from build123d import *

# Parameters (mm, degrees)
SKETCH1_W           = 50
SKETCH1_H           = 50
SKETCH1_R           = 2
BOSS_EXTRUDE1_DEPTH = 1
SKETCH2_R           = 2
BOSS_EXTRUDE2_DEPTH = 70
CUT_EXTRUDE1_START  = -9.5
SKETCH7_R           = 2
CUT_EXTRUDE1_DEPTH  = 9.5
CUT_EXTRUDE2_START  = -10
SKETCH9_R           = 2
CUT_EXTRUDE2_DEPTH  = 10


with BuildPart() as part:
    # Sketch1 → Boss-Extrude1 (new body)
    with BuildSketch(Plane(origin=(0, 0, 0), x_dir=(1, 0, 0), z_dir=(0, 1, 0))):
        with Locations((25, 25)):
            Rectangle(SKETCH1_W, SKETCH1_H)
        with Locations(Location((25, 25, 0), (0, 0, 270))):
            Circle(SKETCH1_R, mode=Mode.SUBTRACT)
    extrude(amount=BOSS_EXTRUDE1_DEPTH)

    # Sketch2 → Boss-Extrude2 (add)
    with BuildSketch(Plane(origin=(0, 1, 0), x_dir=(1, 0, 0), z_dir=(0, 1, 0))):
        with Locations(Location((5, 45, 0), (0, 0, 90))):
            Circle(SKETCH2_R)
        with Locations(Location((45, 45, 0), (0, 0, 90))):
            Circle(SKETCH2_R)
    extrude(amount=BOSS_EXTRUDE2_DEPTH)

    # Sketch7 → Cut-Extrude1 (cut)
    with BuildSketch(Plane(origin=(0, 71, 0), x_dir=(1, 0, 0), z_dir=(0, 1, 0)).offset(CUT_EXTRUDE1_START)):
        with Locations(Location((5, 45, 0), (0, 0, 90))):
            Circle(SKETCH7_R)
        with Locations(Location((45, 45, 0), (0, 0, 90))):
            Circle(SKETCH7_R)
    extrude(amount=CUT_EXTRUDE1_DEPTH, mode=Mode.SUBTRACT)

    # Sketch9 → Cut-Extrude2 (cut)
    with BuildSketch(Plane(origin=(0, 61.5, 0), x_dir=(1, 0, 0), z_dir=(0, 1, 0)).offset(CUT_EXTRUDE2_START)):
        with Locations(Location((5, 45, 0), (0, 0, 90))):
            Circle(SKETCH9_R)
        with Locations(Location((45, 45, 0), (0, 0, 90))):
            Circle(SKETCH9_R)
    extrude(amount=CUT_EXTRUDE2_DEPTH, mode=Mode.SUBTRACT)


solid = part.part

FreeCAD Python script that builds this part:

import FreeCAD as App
import Part
import Sketcher
Q = App.Units.Quantity

doc = App.newDocument("Part")
body = doc.addObject("PartDesign::Body", "Body")

# Sketch on XZ plane
sketch1 = body.newObject("Sketcher::SketchObject", "Sketch")
sketch1.AttachmentSupport = (doc.getObject("XZ_Plane"), [""])
sketch1.MapMode = "FlatFace"
sketch1.addGeometry([
    Part.LineSegment(App.Vector(0, -50, 0), App.Vector(0, 0, 0)),  # 0
    Part.LineSegment(App.Vector(0, 0, 0), App.Vector(50, 0, 0)),  # 1
    Part.LineSegment(App.Vector(50, 0, 0), App.Vector(50, -50, 0)),  # 2
    Part.LineSegment(App.Vector(50, -50, 0), App.Vector(0, -50, 0)),  # 3
    Part.Circle(App.Vector(25, -25, 0), App.Vector(0, 0, 1), 2),  # 4
], False)
sketch1.addConstraint([
    Sketcher.Constraint("Coincident", 0, 2, 1, 1),
    Sketcher.Constraint("Coincident", 1, 2, 2, 1),
    Sketcher.Constraint("Coincident", 2, 2, 3, 1),
    Sketcher.Constraint("Coincident", 3, 2, 0, 1),
    Sketcher.Constraint("Vertical", 0),
    Sketcher.Constraint("Horizontal", 1),
    Sketcher.Constraint("Vertical", 2),
    Sketcher.Constraint("Horizontal", 3),
    Sketcher.Constraint("Coincident", 0, 2, -1, 1),
    Sketcher.Constraint("Equal", 3, 0),
    Sketcher.Constraint("Diameter", 4, Q("4 mm")),
    Sketcher.Constraint("DistanceX", 1, 1, 1, 2, Q("50 mm")),
    Sketcher.Constraint("DistanceX", -1, 1, 4, 3, Q("25 mm")),
    Sketcher.Constraint("DistanceY", 4, 3, -1, 1, Q("25 mm")),
])
pad1 = body.newObject("PartDesign::Pad", "Pad")
pad1.Profile = sketch1
pad1.Length = 1
pad1.Reversed = True

# Sketch on XZ plane
sketch2 = body.newObject("Sketcher::SketchObject", "Sketch001")
sketch2.AttachmentSupport = (doc.getObject("XZ_Plane"), [""])
sketch2.MapMode = "FlatFace"
sketch2.AttachmentOffset = App.Placement(App.Vector(0, 0, -1), App.Rotation())
sketch2.addGeometry([
    Part.Circle(App.Vector(5, -45, 0), App.Vector(0, 0, 1), 2),
    Part.Circle(App.Vector(45, -45, 0), App.Vector(0, 0, 1), 2),
], False)
sketch2.addConstraint([
    Sketcher.Constraint("Equal", 0, 1),
    Sketcher.Constraint("Horizontal", 0, 3, 1, 3),
    Sketcher.Constraint("Diameter", 0, Q("4 mm")),
    Sketcher.Constraint("DistanceX", -1, 1, 0, 3, Q("5 mm")),
    Sketcher.Constraint("DistanceY", 0, 3, -1, 1, Q("45 mm")),
    Sketcher.Constraint("DistanceX", -1, 1, 1, 3, Q("45 mm")),
])
pad2 = body.newObject("PartDesign::Pad", "Pad001")
pad2.Profile = sketch2
pad2.Length = 70
pad2.Reversed = True

# Sketch on XZ plane
sketch3 = body.newObject("Sketcher::SketchObject", "Sketch002")
sketch3.AttachmentSupport = (doc.getObject("XZ_Plane"), [""])
sketch3.MapMode = "FlatFace"
sketch3.AttachmentOffset = App.Placement(App.Vector(0, 0, -61.5), App.Rotation())
sketch3.addGeometry([
    Part.Circle(App.Vector(5, -45, 0), App.Vector(0, 0, 1), 2),
    Part.Circle(App.Vector(45, -45, 0), App.Vector(0, 0, 1), 2),
], False)
sketch3.addConstraint([
    Sketcher.Constraint("Equal", 0, 1),
    Sketcher.Constraint("Horizontal", 0, 3, 1, 3),
    Sketcher.Constraint("Diameter", 0, Q("4 mm")),
    Sketcher.Constraint("DistanceX", -1, 1, 0, 3, Q("5 mm")),
    Sketcher.Constraint("DistanceY", 0, 3, -1, 1, Q("45 mm")),
    Sketcher.Constraint("DistanceX", -1, 1, 1, 3, Q("45 mm")),
])
pocket1 = body.newObject("PartDesign::Pocket", "Pocket")
pocket1.Profile = sketch3
pocket1.Length = 9.5

# Sketch on XZ plane
sketch4 = body.newObject("Sketcher::SketchObject", "Sketch003")
sketch4.AttachmentSupport = (doc.getObject("XZ_Plane"), [""])
sketch4.MapMode = "FlatFace"
sketch4.AttachmentOffset = App.Placement(App.Vector(0, 0, -51.5), App.Rotation())
sketch4.addGeometry([
    Part.Circle(App.Vector(5, -45, 0), App.Vector(0, 0, 1), 2),
    Part.Circle(App.Vector(45, -45, 0), App.Vector(0, 0, 1), 2),
], False)
sketch4.addConstraint([
    Sketcher.Constraint("Equal", 0, 1),
    Sketcher.Constraint("Horizontal", 0, 3, 1, 3),
    Sketcher.Constraint("Diameter", 0, Q("4 mm")),
    Sketcher.Constraint("DistanceX", -1, 1, 0, 3, Q("5 mm")),
    Sketcher.Constraint("DistanceY", 0, 3, -1, 1, Q("45 mm")),
    Sketcher.Constraint("DistanceX", -1, 1, 1, 3, Q("45 mm")),
])
pocket2 = body.newObject("PartDesign::Pocket", "Pocket001")
pocket2.Profile = sketch4
pocket2.Length = 10

doc.recompute()
